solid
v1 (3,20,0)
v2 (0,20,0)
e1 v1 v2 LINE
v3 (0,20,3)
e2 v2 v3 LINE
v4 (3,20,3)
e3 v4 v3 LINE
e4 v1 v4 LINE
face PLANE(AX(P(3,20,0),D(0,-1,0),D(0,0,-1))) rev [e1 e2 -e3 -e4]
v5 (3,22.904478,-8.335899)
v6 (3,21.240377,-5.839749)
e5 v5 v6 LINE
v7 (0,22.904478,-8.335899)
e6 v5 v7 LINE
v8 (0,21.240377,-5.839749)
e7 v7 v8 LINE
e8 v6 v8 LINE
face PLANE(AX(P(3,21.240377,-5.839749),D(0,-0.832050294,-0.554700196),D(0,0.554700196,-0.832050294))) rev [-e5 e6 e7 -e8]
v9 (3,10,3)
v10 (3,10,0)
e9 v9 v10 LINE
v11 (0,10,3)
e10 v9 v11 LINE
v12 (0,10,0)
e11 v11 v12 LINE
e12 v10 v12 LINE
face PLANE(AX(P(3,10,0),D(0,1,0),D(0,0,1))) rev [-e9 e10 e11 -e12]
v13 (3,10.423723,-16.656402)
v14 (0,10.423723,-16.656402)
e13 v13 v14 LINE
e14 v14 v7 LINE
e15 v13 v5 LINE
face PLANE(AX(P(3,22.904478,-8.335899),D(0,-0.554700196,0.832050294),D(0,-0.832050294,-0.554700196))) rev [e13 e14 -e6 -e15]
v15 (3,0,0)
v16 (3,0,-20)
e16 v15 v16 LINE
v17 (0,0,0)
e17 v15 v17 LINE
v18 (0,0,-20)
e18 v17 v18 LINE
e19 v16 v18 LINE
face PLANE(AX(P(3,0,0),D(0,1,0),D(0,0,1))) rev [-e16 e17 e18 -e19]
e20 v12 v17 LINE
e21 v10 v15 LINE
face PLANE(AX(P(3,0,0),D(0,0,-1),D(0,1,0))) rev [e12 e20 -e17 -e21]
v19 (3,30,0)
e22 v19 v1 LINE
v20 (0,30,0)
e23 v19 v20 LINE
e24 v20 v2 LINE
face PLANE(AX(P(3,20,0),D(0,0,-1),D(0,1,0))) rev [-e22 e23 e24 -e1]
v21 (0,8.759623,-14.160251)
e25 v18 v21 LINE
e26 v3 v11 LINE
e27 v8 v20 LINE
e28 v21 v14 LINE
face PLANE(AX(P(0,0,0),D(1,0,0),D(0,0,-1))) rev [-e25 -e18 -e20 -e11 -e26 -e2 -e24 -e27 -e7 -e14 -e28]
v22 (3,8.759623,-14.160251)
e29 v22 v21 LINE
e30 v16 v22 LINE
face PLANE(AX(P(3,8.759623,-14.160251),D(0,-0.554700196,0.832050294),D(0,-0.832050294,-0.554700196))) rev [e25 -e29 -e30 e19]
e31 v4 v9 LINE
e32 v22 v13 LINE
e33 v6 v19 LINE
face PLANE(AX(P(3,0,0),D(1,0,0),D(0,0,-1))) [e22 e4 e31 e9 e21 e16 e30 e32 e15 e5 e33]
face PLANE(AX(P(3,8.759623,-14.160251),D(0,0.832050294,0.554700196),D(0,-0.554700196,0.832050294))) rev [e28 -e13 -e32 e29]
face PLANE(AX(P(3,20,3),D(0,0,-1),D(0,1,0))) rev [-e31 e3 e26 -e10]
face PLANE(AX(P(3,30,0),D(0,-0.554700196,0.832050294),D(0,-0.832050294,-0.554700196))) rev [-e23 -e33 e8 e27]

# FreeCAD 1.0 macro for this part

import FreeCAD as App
import Part
import Sketcher

doc = App.newDocument("Part")
body = doc.addObject("PartDesign::Body", "Body")

sketch1 = body.newObject("Sketcher::SketchObject", "Sketch")
sketch1.AttachmentSupport = (doc.getObject("YZ_Plane"), [""])
sketch1.MapMode = "FlatFace"
sketch1.addGeometry([
    Part.LineSegment(App.Vector(21.2, -5.8, 0), App.Vector(30, 0, 0)),
    Part.LineSegment(App.Vector(30, 0, 0), App.Vector(20, 0, 0)),
    Part.LineSegment(App.Vector(20, 0, 0), App.Vector(20, 3, 0)),
    Part.LineSegment(App.Vector(20, 3, 0), App.Vector(10, 3, 0)),
    Part.LineSegment(App.Vector(10, 3, 0), App.Vector(10, 0, 0)),
    Part.LineSegment(App.Vector(10, 0, 0), App.Vector(0, 0, 0)),
    Part.LineSegment(App.Vector(0, 0, 0), App.Vector(0, -20, 0)),
    Part.LineSegment(App.Vector(0, -20, 0), App.Vector(8.8, -14.2, 0)),
    Part.LineSegment(App.Vector(8.8, -14.2, 0), App.Vector(10.4, -16.7, 0)),
    Part.LineSegment(App.Vector(10.4, -16.7, 0), App.Vector(22.9, -8.3, 0)),
    Part.LineSegment(App.Vector(22.9, -8.3, 0), App.Vector(21.2, -5.8, 0)),
], False)
sketch1.addConstraint([
    Sketcher.Constraint("Coincident", 0, 2, 1, 1),
    Sketcher.Constraint("Coincident", 1, 2, 2, 1),
    Sketcher.Constraint("Coincident", 2, 2, 3, 1),
    Sketcher.Constraint("Coincident", 3, 2, 4, 1),
    Sketcher.Constraint("Coincident", 4, 2, 5, 1),
    Sketcher.Constraint("Coincident", 5, 2, 6, 1),
    Sketcher.Constraint("Coincident", 6, 2, 7, 1),
    Sketcher.Constraint("Coincident", 7, 2, 8, 1),
    Sketcher.Constraint("Coincident", 8, 2, 9, 1),
    Sketcher.Constraint("Coincident", 9, 2, 10, 1),
    Sketcher.Constraint("Coincident", 10, 2, 0, 1),
    Sketcher.Constraint("Horizontal", 1),
    Sketcher.Constraint("Vertical", 2),
    Sketcher.Constraint("Horizontal", 3),
    Sketcher.Constraint("Vertical", 4),
    Sketcher.Constraint("Horizontal", 5),
    Sketcher.Constraint("Vertical", 6),
    Sketcher.Constraint("Coincident", 5, 2, -1, 1),
    Sketcher.Constraint("PointOnObject", 0, 2, -1),
    Sketcher.Constraint("Parallel", 0, 7),
    Sketcher.Constraint("Perpendicular", 7, 8),
    Sketcher.Constraint("Perpendicular", 8, 9),
    Sketcher.Constraint("Perpendicular", 9, 10),
    Sketcher.Constraint("Equal", 1, 3),
    Sketcher.Constraint("Equal", 3, 5),
    Sketcher.Constraint("Equal", 0, 7),
    Sketcher.Constraint("Equal", 8, 10),
    Sketcher.Constraint("DistanceX", 1, 2, 1, 1, 10.0),
    Sketcher.Constraint("DistanceY", 2, 1, 2, 2, 3.0),
    Sketcher.Constraint("DistanceY", 6, 2, 6, 1, 20.0),
    Sketcher.Constraint("Distance", 8, 3.0),
    Sketcher.Constraint("Distance", 9, 15.0),
])
pad1 = body.newObject("PartDesign::Pad", "Pad")
pad1.Profile = sketch1
pad1.Length = 3

doc.recompute()
